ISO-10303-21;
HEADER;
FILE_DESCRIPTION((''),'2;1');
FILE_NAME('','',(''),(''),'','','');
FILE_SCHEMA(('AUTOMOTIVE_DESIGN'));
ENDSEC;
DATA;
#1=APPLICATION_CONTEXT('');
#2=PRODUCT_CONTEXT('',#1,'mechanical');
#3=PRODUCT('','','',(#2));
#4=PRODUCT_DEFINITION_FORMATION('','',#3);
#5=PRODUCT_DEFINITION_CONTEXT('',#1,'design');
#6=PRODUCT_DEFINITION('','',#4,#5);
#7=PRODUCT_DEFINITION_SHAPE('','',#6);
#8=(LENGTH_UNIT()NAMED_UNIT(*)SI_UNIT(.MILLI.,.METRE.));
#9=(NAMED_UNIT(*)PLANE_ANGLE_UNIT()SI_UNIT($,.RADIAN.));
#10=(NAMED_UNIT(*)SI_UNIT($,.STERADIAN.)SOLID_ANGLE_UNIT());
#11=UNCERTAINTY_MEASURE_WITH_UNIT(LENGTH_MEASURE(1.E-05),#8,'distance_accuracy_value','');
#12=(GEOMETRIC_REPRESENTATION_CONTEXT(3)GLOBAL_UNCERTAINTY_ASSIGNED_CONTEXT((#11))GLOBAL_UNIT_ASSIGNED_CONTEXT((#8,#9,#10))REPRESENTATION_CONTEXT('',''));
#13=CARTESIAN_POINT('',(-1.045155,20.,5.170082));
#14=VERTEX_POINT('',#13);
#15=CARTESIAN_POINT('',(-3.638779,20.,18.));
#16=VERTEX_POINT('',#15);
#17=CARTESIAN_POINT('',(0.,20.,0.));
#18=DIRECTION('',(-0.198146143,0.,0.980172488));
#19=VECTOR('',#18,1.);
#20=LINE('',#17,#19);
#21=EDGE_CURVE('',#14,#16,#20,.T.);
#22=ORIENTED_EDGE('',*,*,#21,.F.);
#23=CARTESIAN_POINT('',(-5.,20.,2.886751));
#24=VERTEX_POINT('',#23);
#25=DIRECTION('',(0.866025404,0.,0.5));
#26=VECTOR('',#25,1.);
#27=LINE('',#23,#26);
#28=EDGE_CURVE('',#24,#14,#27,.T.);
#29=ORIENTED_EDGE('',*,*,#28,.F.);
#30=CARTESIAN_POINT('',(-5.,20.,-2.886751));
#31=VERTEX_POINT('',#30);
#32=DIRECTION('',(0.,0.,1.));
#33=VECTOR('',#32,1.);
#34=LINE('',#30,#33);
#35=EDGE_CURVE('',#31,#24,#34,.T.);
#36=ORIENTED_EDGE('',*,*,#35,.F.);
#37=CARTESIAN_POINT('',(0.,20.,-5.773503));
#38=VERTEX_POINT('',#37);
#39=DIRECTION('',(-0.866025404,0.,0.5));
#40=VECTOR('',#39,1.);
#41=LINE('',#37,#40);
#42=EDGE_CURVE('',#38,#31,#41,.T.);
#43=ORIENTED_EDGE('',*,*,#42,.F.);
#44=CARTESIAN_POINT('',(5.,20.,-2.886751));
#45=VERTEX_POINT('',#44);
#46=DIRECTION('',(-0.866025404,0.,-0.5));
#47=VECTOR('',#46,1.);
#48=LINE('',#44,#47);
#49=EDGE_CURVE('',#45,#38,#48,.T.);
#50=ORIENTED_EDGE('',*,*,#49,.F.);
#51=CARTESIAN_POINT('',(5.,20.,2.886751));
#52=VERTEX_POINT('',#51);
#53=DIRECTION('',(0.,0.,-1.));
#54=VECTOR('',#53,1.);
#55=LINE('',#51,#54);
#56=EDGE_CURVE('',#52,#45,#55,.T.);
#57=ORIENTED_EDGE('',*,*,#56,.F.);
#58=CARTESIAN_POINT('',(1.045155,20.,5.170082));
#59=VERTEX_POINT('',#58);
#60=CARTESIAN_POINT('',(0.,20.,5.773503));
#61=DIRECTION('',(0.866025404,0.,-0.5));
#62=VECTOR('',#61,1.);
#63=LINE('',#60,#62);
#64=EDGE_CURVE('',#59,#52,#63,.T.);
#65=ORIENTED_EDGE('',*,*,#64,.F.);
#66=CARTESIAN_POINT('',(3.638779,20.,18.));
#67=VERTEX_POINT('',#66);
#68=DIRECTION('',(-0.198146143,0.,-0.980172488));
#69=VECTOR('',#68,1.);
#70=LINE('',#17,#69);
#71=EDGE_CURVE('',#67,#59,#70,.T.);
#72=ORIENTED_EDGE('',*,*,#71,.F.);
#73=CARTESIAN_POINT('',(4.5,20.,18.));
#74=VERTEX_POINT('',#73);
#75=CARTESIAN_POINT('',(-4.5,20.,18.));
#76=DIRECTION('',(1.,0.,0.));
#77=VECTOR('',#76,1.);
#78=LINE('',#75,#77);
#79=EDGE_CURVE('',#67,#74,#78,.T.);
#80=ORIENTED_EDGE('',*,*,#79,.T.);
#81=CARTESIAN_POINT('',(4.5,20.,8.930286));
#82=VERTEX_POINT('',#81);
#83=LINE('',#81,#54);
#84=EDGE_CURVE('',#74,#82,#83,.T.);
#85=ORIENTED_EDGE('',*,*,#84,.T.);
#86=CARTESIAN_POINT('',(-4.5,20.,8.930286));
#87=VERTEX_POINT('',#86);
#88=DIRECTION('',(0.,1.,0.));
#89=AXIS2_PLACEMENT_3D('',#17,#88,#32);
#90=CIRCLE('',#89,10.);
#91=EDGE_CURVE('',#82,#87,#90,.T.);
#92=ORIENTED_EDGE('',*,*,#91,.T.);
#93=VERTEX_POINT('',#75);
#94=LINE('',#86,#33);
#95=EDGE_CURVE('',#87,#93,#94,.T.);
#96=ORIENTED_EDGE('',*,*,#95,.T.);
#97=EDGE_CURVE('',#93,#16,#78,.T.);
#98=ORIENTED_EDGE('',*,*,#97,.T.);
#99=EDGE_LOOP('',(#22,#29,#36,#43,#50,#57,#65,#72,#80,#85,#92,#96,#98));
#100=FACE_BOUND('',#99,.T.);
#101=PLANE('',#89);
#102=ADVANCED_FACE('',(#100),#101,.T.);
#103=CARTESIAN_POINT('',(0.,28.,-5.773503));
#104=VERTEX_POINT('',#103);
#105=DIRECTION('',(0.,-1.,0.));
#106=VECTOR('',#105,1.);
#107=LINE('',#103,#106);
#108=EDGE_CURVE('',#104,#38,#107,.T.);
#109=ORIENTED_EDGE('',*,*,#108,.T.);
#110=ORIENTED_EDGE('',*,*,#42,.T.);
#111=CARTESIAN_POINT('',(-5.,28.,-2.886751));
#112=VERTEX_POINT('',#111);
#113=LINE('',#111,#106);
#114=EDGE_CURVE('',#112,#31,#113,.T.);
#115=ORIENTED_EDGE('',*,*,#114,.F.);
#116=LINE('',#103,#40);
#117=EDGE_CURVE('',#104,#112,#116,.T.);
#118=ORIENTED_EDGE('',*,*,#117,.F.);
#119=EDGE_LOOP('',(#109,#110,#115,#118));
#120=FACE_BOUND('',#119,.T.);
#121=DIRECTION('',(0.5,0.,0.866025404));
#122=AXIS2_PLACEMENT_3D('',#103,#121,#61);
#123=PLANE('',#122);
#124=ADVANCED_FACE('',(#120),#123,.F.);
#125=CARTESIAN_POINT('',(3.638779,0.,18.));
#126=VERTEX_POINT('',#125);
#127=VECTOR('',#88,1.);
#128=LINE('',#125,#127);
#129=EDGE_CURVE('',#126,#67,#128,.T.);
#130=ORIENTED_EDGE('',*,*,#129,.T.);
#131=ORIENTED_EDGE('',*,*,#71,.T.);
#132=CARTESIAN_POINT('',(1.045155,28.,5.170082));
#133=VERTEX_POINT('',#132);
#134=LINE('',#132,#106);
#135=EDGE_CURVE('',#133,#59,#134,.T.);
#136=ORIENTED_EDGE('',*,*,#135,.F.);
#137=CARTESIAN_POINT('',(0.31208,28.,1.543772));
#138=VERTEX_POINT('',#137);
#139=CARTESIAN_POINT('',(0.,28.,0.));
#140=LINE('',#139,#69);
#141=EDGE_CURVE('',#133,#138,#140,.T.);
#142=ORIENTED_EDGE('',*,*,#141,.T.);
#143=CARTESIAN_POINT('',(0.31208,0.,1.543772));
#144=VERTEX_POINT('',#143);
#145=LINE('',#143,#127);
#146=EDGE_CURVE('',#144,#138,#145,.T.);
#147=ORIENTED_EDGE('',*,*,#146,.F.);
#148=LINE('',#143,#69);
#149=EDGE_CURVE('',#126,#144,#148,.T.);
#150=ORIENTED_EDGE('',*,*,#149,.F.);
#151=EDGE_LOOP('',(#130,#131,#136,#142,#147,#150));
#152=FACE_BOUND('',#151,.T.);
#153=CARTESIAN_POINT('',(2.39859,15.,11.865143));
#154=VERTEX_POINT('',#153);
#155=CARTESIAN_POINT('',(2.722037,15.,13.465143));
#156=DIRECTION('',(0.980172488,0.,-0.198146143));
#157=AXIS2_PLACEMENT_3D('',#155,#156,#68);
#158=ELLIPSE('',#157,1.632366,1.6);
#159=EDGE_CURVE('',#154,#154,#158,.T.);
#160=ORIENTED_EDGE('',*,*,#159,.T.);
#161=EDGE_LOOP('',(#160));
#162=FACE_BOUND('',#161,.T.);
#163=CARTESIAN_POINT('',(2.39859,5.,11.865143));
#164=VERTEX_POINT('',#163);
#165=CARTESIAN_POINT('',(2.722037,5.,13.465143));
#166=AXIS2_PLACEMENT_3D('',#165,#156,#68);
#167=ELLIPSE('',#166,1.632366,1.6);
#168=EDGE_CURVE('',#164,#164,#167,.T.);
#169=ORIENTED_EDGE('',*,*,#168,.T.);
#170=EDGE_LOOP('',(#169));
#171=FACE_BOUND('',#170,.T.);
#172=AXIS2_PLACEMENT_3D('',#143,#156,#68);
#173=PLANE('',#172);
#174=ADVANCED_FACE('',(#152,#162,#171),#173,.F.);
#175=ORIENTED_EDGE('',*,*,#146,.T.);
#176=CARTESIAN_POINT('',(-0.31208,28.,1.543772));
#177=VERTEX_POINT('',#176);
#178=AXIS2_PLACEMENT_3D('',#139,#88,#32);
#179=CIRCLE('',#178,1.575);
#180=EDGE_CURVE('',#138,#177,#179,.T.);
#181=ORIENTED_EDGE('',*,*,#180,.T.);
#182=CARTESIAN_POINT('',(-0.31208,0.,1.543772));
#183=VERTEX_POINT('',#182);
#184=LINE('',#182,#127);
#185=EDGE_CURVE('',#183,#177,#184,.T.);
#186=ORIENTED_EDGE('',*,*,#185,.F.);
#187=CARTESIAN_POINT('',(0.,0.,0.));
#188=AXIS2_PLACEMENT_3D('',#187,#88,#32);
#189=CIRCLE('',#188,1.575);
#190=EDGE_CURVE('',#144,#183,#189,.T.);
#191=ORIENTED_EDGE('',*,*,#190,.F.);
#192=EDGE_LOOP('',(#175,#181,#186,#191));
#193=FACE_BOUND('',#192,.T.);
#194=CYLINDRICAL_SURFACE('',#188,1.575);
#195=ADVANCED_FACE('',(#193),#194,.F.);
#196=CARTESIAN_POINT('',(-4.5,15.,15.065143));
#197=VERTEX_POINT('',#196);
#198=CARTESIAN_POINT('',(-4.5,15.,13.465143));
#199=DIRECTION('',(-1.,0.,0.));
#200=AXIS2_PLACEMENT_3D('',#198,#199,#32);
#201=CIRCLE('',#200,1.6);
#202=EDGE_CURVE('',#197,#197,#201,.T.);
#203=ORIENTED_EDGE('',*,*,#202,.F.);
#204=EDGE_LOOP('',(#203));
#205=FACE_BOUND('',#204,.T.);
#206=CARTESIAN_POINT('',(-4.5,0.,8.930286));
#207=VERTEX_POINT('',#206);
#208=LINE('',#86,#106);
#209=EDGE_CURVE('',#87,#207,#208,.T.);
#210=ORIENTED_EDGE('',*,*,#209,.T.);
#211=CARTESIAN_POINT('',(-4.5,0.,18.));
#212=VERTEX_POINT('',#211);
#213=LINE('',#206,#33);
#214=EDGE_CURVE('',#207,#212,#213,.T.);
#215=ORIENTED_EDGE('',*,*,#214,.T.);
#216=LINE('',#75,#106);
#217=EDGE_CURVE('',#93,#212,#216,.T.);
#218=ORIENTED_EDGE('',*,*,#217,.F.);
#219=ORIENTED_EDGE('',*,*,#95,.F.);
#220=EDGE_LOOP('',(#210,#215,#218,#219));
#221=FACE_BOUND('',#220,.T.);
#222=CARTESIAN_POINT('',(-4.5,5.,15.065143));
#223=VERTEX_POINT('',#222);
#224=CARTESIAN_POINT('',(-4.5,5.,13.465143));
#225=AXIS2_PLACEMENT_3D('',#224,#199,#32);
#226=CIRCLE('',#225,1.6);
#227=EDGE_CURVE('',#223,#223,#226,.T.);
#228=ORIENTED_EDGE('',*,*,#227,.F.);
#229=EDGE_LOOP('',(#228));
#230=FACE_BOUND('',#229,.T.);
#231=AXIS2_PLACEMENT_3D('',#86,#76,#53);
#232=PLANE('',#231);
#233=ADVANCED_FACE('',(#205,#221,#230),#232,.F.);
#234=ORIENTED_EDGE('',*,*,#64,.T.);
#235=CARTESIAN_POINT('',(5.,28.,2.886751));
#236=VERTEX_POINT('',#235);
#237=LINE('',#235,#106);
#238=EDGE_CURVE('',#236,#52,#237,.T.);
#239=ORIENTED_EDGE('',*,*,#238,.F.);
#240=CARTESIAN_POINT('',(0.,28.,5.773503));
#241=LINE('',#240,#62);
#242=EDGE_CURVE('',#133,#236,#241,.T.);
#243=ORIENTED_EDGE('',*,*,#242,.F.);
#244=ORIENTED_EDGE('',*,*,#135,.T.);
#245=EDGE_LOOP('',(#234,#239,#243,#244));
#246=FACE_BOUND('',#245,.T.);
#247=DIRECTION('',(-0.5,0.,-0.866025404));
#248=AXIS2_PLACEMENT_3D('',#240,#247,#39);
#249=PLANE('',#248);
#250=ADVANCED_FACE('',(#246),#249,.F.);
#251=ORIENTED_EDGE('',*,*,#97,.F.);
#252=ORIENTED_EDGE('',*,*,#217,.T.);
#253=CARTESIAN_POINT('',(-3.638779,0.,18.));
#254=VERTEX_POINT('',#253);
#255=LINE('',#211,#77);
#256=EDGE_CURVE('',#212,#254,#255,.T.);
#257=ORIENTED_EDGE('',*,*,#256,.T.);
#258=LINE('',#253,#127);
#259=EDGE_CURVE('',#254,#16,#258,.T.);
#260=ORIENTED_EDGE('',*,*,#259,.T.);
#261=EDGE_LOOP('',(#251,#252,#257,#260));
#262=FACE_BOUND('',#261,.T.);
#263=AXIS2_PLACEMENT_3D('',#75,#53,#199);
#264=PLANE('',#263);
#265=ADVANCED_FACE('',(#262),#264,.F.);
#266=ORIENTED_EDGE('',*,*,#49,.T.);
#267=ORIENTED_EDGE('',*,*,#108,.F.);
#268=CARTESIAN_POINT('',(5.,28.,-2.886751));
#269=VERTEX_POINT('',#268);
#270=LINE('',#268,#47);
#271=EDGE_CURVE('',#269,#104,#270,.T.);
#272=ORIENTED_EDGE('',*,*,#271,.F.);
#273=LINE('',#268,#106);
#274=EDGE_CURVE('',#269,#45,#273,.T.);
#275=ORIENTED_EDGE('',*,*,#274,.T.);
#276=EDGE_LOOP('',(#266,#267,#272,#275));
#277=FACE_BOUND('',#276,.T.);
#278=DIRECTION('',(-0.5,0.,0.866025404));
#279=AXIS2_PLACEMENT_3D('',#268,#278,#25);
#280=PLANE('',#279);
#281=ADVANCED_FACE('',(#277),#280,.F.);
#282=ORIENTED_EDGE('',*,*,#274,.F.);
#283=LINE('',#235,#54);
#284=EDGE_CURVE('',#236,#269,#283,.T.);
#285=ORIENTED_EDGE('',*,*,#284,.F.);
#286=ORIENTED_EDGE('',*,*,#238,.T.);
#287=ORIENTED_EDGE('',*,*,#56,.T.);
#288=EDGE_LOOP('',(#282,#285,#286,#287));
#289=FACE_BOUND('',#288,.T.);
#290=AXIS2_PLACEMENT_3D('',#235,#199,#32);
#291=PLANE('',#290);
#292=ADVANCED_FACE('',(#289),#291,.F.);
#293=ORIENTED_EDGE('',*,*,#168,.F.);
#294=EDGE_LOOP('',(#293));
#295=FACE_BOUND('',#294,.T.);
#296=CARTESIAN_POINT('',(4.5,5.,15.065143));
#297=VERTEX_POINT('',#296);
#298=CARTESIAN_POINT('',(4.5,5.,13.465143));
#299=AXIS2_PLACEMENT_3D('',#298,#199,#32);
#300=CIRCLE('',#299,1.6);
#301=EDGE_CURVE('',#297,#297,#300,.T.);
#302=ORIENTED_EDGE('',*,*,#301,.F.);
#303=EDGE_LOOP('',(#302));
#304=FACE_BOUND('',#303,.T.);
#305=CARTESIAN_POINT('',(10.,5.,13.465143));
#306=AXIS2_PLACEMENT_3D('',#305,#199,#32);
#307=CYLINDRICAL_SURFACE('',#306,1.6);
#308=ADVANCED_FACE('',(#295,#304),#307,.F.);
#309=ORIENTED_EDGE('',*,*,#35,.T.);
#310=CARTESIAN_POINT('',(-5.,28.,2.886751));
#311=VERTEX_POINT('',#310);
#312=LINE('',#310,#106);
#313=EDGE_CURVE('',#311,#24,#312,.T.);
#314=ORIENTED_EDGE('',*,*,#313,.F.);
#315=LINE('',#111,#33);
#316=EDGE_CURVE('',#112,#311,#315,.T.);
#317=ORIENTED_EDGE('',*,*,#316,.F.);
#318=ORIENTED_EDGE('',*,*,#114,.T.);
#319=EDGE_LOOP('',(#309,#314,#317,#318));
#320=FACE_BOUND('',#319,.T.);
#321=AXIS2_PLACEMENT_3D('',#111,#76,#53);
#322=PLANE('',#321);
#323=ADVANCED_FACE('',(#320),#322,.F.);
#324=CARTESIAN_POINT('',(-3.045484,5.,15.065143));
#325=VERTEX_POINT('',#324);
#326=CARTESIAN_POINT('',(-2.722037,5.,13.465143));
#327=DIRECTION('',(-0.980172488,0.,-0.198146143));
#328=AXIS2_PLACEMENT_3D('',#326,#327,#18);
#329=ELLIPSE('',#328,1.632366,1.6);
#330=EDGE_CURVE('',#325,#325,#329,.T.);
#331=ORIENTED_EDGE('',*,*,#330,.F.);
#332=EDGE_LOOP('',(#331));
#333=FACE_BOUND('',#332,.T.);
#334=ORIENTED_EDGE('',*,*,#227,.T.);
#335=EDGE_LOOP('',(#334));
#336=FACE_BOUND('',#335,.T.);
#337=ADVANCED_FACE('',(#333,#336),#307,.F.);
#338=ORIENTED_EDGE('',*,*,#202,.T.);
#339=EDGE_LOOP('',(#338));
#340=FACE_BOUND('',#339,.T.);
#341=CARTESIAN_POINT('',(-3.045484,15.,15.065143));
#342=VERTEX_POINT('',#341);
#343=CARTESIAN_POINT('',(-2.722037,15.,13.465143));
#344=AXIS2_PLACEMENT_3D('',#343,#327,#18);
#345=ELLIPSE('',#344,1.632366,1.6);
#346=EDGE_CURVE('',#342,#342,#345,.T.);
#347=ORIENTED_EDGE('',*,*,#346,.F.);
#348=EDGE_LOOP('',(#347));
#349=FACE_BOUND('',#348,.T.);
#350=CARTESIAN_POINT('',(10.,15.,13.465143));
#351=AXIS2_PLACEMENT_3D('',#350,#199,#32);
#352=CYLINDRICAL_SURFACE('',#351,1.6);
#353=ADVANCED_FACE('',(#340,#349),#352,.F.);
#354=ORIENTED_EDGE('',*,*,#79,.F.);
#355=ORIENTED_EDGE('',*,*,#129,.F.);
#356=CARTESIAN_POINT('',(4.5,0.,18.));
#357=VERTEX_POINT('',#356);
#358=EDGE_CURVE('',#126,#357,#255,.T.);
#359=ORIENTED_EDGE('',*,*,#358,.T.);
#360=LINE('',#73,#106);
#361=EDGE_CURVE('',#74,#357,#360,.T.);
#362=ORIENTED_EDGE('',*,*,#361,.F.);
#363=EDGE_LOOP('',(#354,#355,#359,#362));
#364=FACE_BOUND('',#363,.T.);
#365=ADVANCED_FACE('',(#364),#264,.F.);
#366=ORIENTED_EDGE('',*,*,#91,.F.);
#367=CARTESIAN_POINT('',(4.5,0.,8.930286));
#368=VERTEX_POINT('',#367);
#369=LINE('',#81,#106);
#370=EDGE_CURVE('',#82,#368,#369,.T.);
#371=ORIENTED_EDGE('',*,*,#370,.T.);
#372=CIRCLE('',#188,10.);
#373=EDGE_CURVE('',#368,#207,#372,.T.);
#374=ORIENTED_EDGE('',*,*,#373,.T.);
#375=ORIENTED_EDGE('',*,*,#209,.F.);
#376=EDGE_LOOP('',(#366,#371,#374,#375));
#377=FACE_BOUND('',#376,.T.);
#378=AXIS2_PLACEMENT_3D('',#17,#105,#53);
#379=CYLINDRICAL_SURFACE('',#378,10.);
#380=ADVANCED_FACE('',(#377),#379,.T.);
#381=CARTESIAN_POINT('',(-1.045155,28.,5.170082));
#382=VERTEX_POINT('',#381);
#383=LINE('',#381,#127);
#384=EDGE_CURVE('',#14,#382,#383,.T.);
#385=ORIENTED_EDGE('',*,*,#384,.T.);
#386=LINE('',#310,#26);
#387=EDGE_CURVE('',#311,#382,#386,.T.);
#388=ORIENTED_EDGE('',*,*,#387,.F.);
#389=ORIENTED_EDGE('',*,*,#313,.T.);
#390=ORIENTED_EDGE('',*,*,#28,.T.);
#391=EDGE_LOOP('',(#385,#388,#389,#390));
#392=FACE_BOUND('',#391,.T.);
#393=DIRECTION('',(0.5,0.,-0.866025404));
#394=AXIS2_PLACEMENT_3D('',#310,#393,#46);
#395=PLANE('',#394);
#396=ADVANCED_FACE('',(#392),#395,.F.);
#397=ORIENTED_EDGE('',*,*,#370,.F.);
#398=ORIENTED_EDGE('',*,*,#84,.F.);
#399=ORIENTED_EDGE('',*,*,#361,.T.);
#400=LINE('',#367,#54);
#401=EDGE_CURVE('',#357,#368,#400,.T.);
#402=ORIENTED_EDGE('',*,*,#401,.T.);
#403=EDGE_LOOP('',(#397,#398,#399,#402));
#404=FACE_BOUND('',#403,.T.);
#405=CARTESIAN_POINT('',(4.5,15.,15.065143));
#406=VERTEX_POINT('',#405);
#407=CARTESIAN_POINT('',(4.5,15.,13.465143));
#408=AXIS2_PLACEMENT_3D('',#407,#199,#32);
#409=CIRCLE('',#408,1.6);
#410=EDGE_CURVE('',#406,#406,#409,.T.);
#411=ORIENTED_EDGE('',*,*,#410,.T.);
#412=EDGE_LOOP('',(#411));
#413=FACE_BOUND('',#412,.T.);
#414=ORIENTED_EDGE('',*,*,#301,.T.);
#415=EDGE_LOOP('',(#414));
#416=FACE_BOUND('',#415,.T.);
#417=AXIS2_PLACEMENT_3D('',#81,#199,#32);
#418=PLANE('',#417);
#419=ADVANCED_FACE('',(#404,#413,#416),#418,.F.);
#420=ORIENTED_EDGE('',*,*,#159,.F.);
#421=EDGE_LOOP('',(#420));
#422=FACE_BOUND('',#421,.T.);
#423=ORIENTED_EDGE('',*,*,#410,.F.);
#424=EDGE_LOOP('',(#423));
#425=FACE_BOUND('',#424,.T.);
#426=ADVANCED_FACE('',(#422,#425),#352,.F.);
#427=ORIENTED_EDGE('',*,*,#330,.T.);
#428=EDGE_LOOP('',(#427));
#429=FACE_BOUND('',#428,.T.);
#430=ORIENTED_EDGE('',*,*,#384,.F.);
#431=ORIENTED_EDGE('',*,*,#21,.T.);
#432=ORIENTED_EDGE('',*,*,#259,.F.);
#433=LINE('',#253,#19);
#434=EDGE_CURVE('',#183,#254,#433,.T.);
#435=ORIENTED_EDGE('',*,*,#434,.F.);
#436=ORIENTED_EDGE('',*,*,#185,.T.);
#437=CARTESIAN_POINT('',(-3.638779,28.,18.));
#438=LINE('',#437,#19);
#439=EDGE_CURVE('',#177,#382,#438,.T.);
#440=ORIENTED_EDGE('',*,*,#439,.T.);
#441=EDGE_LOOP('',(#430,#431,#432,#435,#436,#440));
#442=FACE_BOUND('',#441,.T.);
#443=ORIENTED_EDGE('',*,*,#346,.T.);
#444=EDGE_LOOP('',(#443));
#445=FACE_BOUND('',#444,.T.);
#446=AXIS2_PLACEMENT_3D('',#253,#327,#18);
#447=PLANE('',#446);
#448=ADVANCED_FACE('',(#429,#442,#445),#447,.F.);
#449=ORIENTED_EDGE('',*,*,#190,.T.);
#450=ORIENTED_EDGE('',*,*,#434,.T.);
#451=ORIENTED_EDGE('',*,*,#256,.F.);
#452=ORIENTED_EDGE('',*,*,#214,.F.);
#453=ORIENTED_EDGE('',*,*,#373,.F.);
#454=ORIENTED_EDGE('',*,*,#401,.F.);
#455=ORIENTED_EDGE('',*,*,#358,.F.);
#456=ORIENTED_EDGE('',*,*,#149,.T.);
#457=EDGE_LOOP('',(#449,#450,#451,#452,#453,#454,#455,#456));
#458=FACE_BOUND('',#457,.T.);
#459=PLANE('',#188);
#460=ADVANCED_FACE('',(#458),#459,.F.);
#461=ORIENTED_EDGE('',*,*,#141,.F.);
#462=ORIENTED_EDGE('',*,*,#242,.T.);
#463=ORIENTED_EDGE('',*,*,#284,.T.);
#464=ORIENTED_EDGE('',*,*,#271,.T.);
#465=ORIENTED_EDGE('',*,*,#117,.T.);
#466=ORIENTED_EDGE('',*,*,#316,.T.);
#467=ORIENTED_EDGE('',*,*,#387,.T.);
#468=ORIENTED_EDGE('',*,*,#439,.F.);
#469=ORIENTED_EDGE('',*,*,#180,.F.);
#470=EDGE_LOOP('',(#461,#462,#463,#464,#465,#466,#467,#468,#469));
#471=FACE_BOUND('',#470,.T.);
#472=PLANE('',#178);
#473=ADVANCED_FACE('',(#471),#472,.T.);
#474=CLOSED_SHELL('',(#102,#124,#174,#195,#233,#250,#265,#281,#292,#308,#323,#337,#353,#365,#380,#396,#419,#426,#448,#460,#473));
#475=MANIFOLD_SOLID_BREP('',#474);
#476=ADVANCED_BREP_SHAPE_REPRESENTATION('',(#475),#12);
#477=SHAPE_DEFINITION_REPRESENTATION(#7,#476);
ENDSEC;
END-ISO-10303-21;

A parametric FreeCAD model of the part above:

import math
import FreeCAD as App
import Part
import Sketcher
from FreeCAD import Vector
Q = App.Units.Quantity


def add_polygon(sketch, points):
    """Adds a closed chain of lines whose ends are joined by coincident constraints."""
    first, n = sketch.GeometryCount, len(points)
    for a, b in zip(points, points[1:] + points[:1]):
        sketch.addGeometry(Part.LineSegment(App.Vector(*a, 0), App.Vector(*b, 0)), False)
    for i in range(n):
        sketch.addConstraint(Sketcher.Constraint("Coincident", first + i, 2, first + (i + 1) % n, 1))

doc = App.newDocument("Part")
body = doc.addObject("PartDesign::Body", "Body")

sketch1 = body.newObject("Sketcher::SketchObject", "Sketch")
sketch1.AttachmentSupport = (doc.getObject("XZ_Plane"), [""])
sketch1.MapMode = "FlatFace"
sketch1.addGeometry([
    Part.LineSegment(Vector(-4, 9, 0), Vector(-4, 18, 0)),
    Part.LineSegment(Vector(-4, 18, 0), Vector(4, 18, 0)),
    Part.LineSegment(Vector(4, 18, 0), Vector(4, 9, 0)),
    Part.ArcOfCircle(Part.Circle(Vector(0, 0, 0), Vector(0, 0, 1), 10), math.radians(117), math.radians(423)),
], False)
sketch1.addConstraint([
    Sketcher.Constraint("Coincident", 0, 2, 1, 1),
    Sketcher.Constraint("Coincident", 1, 2, 2, 1),
    Sketcher.Constraint("Coincident", 2, 2, 3, 2),
    Sketcher.Constraint("Coincident", 3, 1, 0, 1),
    Sketcher.Constraint("Vertical", 0),
    Sketcher.Constraint("Horizontal", 1),
    Sketcher.Constraint("Vertical", 2),
    Sketcher.Constraint("Coincident", 3, 3, -1, 1),
    Sketcher.Constraint("Horizontal", 2, 2, 3, 1),
    Sketcher.Constraint("Radius", 3, 10.0),
    Sketcher.Constraint("DistanceX", 1, 1, 1, 2, 9.0),
    Sketcher.Constraint("DistanceY", -1, 1, 0, 2, 18.0),
])
pad1 = body.newObject("PartDesign::Pad", "Pad")
pad1.Profile = sketch1
pad1.Length = 20
pad1.Reversed = True

sketch2 = body.newObject("Sketcher::SketchObject", "Sketch001")
sketch2.AttachmentSupport = (doc.getObject("XZ_Plane"), [""])
sketch2.MapMode = "FlatFace"
sketch2.AttachmentOffset = App.Placement(Vector(0, 0, -20), App.Rotation())
add_polygon(sketch2, [(0, -6), (-5, -3), (-5, 3), (0, 6), (5, 3), (5, -3)])
sketch2.addConstraint([
    Sketcher.Constraint("Vertical", 1),
    Sketcher.Constraint("Vertical", 4),
    Sketcher.Constraint("Symmetric", 0, 2, 3, 2, -1, 1),
    Sketcher.Constraint("Symmetric", 2, 2, 5, 2, -1, 1),
    Sketcher.Constraint("PointOnObject", 2, 2, -2),
    Sketcher.Constraint("Parallel", 2, 5),
    Sketcher.Constraint("Horizontal", 1, 2, 3, 2),
    Sketcher.Constraint("Angle", 0, Q("150 deg")),
    Sketcher.Constraint("DistanceX", 0, 2, -1, 1, 5.0),
    Sketcher.Constraint("DistanceY", 1, 1, 1, 2, 5.773503),
])
pad2 = body.newObject("PartDesign::Pad", "Pad001")
pad2.Profile = sketch2
pad2.Length = 8
pad2.Reversed = True

sketch3 = body.newObject("Sketcher::SketchObject", "Sketch002")
sketch3.AttachmentSupport = (doc.getObject("XZ_Plane"), [""])
sketch3.MapMode = "FlatFace"
sketch3.AttachmentOffset = App.Placement(Vector(0, 0, -28), App.Rotation())
sketch3.addGeometry([
    Part.LineSegment(Vector(-0.3, 1.5, 0), Vector(-3.6, 18, 0)),
    Part.ArcOfCircle(Part.Circle(Vector(0, 0, 0), Vector(0, 0, 1), 18.4), math.radians(79), math.radians(101)),
    Part.LineSegment(Vector(3.6, 18, 0), Vector(0.3, 1.5, 0)),
    Part.ArcOfCircle(Part.Circle(Vector(0, 0, 0), Vector(0, 0, 1), 1.6), math.radians(101), math.radians(439)),
], False)
sketch3.addConstraint([
    Sketcher.Constraint("Coincident", 0, 2, 1, 2),
    Sketcher.Constraint("Coincident", 1, 1, 2, 1),
    Sketcher.Constraint("Coincident", 2, 2, 3, 2),
    Sketcher.Constraint("Coincident", 3, 1, 0, 1),
    Sketcher.Constraint("Coincident", 1, 3, -1, 1),
    Sketcher.Constraint("Coincident", 3, 3, -1, 1),
    Sketcher.Constraint("Horizontal", 0, 2, 1, 1),
    Sketcher.Constraint("Horizontal", 2, 2, 3, 1),
    Sketcher.Constraint("DistanceY", -1, 1, 0, 2, 18.0),
    Sketcher.Constraint("Radius", 3, 1.575),
    Sketcher.Constraint("Radius", 1, 18.364115),
    Sketcher.Constraint("DistanceX", 2, 2, 1, 1, 3.326698),
])
pocket1 = body.newObject("PartDesign::Pocket", "Pocket")
pocket1.Profile = sketch3
pocket1.Type = "ThroughAll"
pocket1.Reversed = True

sketch4 = body.newObject("Sketcher::SketchObject", "Sketch003")
sketch4.AttachmentSupport = (doc.getObject("YZ_Plane"), [""])
sketch4.MapMode = "FlatFace"
sketch4.AttachmentOffset = App.Placement(Vector(0, 0, -4.5), App.Rotation())
sketch4.addGeometry([
    Part.Circle(Vector(15, 13.5, 0), Vector(0, 0, 1), 1.6),
    Part.Circle(Vector(5, 13.5, 0), Vector(0, 0, 1), 1.6),
], False)
sketch4.addConstraint([
    Sketcher.Constraint("Equal", 0, 1),
    Sketcher.Constraint("Horizontal", 0, 3, 1, 3),
    Sketcher.Constraint("Diameter", 0, 3.2),
    Sketcher.Constraint("DistanceX", -1, 1, 0, 3, 15.0),
    Sketcher.Constraint("DistanceX", -1, 1, 1, 3, 5.0),
    Sketcher.Constraint("DistanceY", -1, 1, 0, 3, 13.465143),
])
pocket2 = body.newObject("PartDesign::Pocket", "Pocket001")
pocket2.Profile = sketch4
pocket2.Type = "ThroughAll"
pocket2.Reversed = True

doc.recompute()
